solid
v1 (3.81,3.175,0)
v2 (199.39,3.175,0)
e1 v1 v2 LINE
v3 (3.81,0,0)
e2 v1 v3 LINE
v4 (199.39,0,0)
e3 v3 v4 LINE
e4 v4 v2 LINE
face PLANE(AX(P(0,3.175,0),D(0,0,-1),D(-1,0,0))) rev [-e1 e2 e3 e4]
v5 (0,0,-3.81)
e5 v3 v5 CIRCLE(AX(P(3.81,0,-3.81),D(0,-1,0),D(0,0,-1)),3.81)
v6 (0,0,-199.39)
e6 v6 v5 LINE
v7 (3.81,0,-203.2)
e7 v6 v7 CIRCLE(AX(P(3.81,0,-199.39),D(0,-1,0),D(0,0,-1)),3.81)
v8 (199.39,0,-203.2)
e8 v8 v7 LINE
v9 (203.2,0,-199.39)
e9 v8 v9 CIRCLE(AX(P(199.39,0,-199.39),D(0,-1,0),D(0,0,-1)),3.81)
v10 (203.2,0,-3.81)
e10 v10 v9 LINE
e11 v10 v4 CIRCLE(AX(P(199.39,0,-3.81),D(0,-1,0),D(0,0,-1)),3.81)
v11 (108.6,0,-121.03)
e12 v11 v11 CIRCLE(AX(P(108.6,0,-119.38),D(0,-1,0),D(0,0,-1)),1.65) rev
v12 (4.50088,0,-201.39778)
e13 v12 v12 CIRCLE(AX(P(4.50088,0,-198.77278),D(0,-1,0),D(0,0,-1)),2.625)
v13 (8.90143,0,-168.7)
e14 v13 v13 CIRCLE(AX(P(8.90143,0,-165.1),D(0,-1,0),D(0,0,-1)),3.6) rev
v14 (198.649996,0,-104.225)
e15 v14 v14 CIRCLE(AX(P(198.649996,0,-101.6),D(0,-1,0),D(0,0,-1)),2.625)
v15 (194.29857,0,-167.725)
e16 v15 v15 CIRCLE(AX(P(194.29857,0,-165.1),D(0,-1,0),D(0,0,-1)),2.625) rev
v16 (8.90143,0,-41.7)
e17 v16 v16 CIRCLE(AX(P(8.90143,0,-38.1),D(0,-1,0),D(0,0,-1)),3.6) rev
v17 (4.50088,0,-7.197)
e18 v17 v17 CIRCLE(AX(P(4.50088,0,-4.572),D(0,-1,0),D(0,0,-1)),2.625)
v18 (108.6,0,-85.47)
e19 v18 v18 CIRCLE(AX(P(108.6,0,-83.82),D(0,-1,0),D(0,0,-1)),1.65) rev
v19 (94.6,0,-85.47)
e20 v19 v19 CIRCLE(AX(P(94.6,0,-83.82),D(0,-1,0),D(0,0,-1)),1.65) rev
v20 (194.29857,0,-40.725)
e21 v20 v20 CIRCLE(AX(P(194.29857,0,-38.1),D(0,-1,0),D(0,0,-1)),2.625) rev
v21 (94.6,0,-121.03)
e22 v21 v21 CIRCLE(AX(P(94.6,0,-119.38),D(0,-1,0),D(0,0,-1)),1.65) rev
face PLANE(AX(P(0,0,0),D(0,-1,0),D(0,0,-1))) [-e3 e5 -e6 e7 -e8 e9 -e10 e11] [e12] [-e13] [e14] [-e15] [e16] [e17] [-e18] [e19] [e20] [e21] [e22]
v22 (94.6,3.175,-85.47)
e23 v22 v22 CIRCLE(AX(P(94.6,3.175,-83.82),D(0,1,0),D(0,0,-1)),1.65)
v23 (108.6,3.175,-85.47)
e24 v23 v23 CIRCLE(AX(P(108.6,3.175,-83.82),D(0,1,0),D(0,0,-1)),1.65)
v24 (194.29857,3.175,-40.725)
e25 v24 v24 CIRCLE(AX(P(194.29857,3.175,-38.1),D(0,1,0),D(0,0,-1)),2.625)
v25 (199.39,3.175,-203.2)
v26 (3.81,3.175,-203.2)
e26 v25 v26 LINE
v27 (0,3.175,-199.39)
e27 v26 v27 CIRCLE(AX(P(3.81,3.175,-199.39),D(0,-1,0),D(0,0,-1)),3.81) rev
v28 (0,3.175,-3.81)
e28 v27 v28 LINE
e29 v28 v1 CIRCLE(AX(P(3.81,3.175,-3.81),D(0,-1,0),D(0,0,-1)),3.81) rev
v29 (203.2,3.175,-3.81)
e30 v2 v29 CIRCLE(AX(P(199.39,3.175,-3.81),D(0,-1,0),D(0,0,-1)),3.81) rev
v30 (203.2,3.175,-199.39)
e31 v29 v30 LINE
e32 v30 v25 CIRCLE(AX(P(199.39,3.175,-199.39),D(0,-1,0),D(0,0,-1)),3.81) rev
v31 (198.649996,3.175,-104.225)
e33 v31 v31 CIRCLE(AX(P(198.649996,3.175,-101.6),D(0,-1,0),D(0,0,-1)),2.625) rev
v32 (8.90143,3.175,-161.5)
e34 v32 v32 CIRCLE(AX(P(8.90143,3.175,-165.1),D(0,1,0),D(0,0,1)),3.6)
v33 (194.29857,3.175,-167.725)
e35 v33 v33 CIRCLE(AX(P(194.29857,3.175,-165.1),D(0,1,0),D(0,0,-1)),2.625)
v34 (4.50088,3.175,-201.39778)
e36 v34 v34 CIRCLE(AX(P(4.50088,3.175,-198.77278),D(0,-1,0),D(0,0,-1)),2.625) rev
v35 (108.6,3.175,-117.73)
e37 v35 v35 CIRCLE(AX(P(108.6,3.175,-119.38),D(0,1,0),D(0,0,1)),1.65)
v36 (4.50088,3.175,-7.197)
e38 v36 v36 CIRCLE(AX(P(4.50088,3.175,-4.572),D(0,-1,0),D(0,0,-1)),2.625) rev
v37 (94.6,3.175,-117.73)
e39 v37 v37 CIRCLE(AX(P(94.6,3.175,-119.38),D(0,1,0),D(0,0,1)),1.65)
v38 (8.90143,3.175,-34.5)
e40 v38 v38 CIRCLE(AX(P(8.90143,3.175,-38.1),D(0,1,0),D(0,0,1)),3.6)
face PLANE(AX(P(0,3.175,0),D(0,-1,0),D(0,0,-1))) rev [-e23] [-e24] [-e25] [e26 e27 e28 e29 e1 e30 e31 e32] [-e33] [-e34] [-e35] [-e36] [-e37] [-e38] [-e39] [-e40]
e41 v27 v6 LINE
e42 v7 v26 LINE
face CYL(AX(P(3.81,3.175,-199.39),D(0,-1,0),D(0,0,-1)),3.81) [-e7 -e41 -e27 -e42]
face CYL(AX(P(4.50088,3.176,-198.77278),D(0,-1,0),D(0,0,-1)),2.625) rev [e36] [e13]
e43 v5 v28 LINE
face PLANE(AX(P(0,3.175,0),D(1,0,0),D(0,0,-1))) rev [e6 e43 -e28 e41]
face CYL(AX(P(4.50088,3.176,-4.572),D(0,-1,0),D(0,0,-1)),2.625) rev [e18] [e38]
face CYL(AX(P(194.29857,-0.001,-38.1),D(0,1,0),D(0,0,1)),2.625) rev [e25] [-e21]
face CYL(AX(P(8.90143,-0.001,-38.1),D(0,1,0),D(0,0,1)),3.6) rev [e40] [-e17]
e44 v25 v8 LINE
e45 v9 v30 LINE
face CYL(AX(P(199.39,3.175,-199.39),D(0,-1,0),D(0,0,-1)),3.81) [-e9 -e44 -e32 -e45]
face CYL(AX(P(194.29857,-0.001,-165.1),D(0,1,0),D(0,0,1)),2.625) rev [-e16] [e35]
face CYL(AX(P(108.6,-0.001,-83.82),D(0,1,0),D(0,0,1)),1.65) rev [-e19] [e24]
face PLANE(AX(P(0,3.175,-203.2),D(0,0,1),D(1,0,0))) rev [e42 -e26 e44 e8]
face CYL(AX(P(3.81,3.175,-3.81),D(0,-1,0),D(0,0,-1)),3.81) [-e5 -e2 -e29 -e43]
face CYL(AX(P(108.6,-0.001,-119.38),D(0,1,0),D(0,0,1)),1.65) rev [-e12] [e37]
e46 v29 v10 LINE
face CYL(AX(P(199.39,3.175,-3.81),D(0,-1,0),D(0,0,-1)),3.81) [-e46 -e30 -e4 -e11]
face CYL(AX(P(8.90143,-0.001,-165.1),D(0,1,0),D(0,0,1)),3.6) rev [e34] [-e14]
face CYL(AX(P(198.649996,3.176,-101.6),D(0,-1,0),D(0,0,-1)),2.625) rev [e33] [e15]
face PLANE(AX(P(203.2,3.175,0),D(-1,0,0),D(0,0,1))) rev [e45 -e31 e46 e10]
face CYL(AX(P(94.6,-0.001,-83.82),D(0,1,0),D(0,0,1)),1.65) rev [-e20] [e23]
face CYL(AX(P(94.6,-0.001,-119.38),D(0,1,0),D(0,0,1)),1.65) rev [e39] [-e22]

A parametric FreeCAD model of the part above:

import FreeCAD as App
import Part
import Sketcher

V = App.Vector
Q = App.Units.Quantity


def edges_at(feature, points):
    """Names of the edges that pass closest to the given points."""
    edges = feature.Shape.Edges
    near = lambda p: min(range(len(edges)), key=lambda i: edges[i].distToShape(Part.Vertex(*p))[0])
    return sorted({f"Edge{near(p) + 1}" for p in points})

doc = App.newDocument("Part")
params = doc.addObject("Spreadsheet::Sheet", "Params")
for row, (alias, value) in enumerate([
    ("sketch1_width", "8 in"),
    ("pad1_length", "0.125 in"),
    ("fillet_radius", "0.15 in"),
], start=1):
    params.set(f"A{row}", alias)
    params.set(f"B{row}", "=" + value)
    params.setAlias(f"B{row}", alias)

body = doc.addObject("PartDesign::Body", "Body")

sketch1 = body.newObject("Sketcher::SketchObject", "Sketch")
sketch1.AttachmentSupport = (doc.getObject("XZ_Plane"), [""])
sketch1.MapMode = "FlatFace"
sketch1.addGeometry(Part.LineSegment(V(0, -203, 0), V(0, 0, 0)), False)
sketch1.addGeometry(Part.LineSegment(V(0, 0, 0), V(203, 0, 0)), False)
sketch1.addGeometry(Part.LineSegment(V(203, 0, 0), V(203, -203, 0)), False)
sketch1.addGeometry(Part.LineSegment(V(203, -203, 0), V(0, -203, 0)), False)
sketch1.addConstraint(Sketcher.Constraint("Coincident", 0, 2, 1, 1))
sketch1.addConstraint(Sketcher.Constraint("Coincident", 1, 2, 2, 1))
sketch1.addConstraint(Sketcher.Constraint("Coincident", 2, 2, 3, 1))
sketch1.addConstraint(Sketcher.Constraint("Coincident", 3, 2, 0, 1))
sketch1.addConstraint(Sketcher.Constraint("Vertical", 0))
sketch1.addConstraint(Sketcher.Constraint("Horizontal", 1))
sketch1.addConstraint(Sketcher.Constraint("Vertical", 2))
sketch1.addConstraint(Sketcher.Constraint("Horizontal", 3))
sketch1.addConstraint(Sketcher.Constraint("Coincident", 0, 2, -1, 1))
sketch1.addConstraint(Sketcher.Constraint("Equal", 3, 0))
sketch1.addConstraint(Sketcher.Constraint("DistanceX", 1, 1, 1, 2, Q("8 in")))
sketch1.setExpression("Constraints[10]", "Params.sketch1_width")
pad1 = body.newObject("PartDesign::Pad", "Pad")
pad1.Profile = sketch1
pad1.setExpression("Length", "Params.pad1_length")
pad1.Reversed = True

sketch2 = body.newObject("Sketcher::SketchObject", "Sketch001")
sketch2.AttachmentSupport = (doc.getObject("XZ_Plane"), [""])
sketch2.MapMode = "FlatFace"
sketch2.AttachmentOffset = App.Placement(V(0, 0, -0.125 * 25.4), App.Rotation())
sketch2.addGeometry(Part.Circle(V(8.9, -38.1, 0), V(0, 0, 1), 3.6), False)
sketch2.addConstraint(Sketcher.Constraint("DistanceY", 0, 3, -1, 1, Q("1.5 in")))
sketch2.addConstraint(Sketcher.Constraint("Diameter", 0, Q("7.2 mm")))
sketch2.addConstraint(Sketcher.Constraint("DistanceX", -1, 1, 0, 3, Q("8.90143 mm")))
pocket1 = body.newObject("PartDesign::Pocket", "Pocket")
pocket1.Profile = sketch2
pocket1.Type = "UpToFirst"
pocket1.Reversed = True

sketch3 = body.newObject("Sketcher::SketchObject", "Sketch002")
sketch3.AttachmentSupport = (doc.getObject("XZ_Plane"), [""])
sketch3.MapMode = "FlatFace"
sketch3.AttachmentOffset = App.Placement(V(0, 0, -0.125 * 25.4), App.Rotation())
sketch3.addGeometry(Part.Circle(V(8.9, -165.1, 0), V(0, 0, 1), 3.6), False)
sketch3.addConstraint(Sketcher.Constraint("DistanceY", 0, 3, -1, 1, Q("6.5 in")))
sketch3.addConstraint(Sketcher.Constraint("Diameter", 0, Q("7.2 mm")))
sketch3.addConstraint(Sketcher.Constraint("DistanceX", -1, 1, 0, 3, Q("8.90143 mm")))
pocket2 = body.newObject("PartDesign::Pocket", "Pocket001")
pocket2.Profile = sketch3
pocket2.Type = "UpToFirst"
pocket2.Reversed = True

sketch4 = body.newObject("Sketcher::SketchObject", "Sketch003")
sketch4.AttachmentSupport = (doc.getObject("XZ_Plane"), [""])
sketch4.MapMode = "FlatFace"
sketch4.AttachmentOffset = App.Placement(V(0, 0, -0.125 * 25.4), App.Rotation())
sketch4.addGeometry(Part.Circle(V(194.3, -38.1, 0), V(0, 0, 1), 2.6), False)
sketch4.addConstraint(Sketcher.Constraint("DistanceY", 0, 3, -1, 1, Q("1.5 in")))
sketch4.addConstraint(Sketcher.Constraint("Diameter", 0, Q("5.25 mm")))
sketch4.addConstraint(Sketcher.Constraint("DistanceX", -1, 1, 0, 3, Q("194.29857 mm")))
pocket3 = body.newObject("PartDesign::Pocket", "Pocket002")
pocket3.Profile = sketch4
pocket3.Type = "UpToFirst"
pocket3.Reversed = True

sketch5 = body.newObject("Sketcher::SketchObject", "Sketch004")
sketch5.AttachmentSupport = (doc.getObject("XZ_Plane"), [""])
sketch5.MapMode = "FlatFace"
sketch5.AttachmentOffset = App.Placement(V(0, 0, -0.125 * 25.4), App.Rotation())
sketch5.addGeometry(Part.Circle(V(194.3, -165.1, 0), V(0, 0, 1), 2.6), False)
sketch5.addConstraint(Sketcher.Constraint("DistanceY", 0, 3, -1, 1, Q("6.5 in")))
sketch5.addConstraint(Sketcher.Constraint("Diameter", 0, Q("5.25 mm")))
sketch5.addConstraint(Sketcher.Constraint("DistanceX", -1, 1, 0, 3, Q("194.29857 mm")))
pocket4 = body.newObject("PartDesign::Pocket", "Pocket003")
pocket4.Profile = sketch5
pocket4.Type = "UpToFirst"
pocket4.Reversed = True

sketch6 = body.newObject("Sketcher::SketchObject", "Sketch005")
sketch6.AttachmentSupport = (doc.getObject("XZ_Plane"), [""])
sketch6.MapMode = "FlatFace"
sketch6.addGeometry(Part.Circle(V(4.5, -4.6, 0), V(0, 0, 1), 2.6), False)
sketch6.addConstraint(Sketcher.Constraint("Diameter", 0, Q("5.25 mm")))
sketch6.addConstraint(Sketcher.Constraint("DistanceY", 0, 3, -1, 1, Q("0.18 in")))
sketch6.addConstraint(Sketcher.Constraint("DistanceX", -1, 1, 0, 3, Q("0.1772 in")))
pocket5 = body.newObject("PartDesign::Pocket", "Pocket004")
pocket5.Profile = sketch6
pocket5.Type = "UpToFirst"

sketch7 = body.newObject("Sketcher::SketchObject", "Sketch006")
sketch7.AttachmentSupport = (doc.getObject("XZ_Plane"), [""])
sketch7.MapMode = "FlatFace"
sketch7.addGeometry(Part.Circle(V(4.5, -198.8, 0), V(0, 0, 1), 2.6), False)
sketch7.addConstraint(Sketcher.Constraint("Diameter", 0, Q("5.25 mm")))
sketch7.addConstraint(Sketcher.Constraint("DistanceX", -1, 1, 0, 3, Q("0.1772 in")))
sketch7.addConstraint(Sketcher.Constraint("DistanceY", 0, 3, -1, 1, Q("7.8257 in")))
pocket6 = body.newObject("PartDesign::Pocket", "Pocket005")
pocket6.Profile = sketch7
pocket6.Type = "UpToFirst"

sketch8 = body.newObject("Sketcher::SketchObject", "Sketch007")
sketch8.AttachmentSupport = (doc.getObject("XZ_Plane"), [""])
sketch8.MapMode = "FlatFace"
sketch8.addGeometry(Part.Circle(V(198.6, -101.6, 0), V(0, 0, 1), 2.6), False)
sketch8.addConstraint(Sketcher.Constraint("DistanceY", 0, 3, -1, 1, Q("4 in")))
sketch8.addConstraint(Sketcher.Constraint("Diameter", 0, Q("5.25 mm")))
sketch8.addConstraint(Sketcher.Constraint("DistanceX", -1, 1, 0, 3, Q("198.649996 mm")))
pocket7 = body.newObject("PartDesign::Pocket", "Pocket006")
pocket7.Profile = sketch8
pocket7.Type = "UpToFirst"
doc.recompute()

fillet = body.newObject("PartDesign::Fillet", "Fillet")
fillet.Base = (pocket7, edges_at(pocket7, [
    (0, 1.587, -203.2),
    (203.2, 1.587, -203.2),
    (203.2, 1.587, 0),
    (0, 1.587, 0),
]))
fillet.setExpression("Radius", "Params.fillet_radius")

sketch9 = body.newObject("Sketcher::SketchObject", "Sketch008")
sketch9.AttachmentSupport = (doc.getObject("XZ_Plane"), [""])
sketch9.MapMode = "FlatFace"
sketch9.AttachmentOffset = App.Placement(V(0, 0, -0.125 * 25.4), App.Rotation())
sketch9.addGeometry(Part.Circle(V(94.6, -119.4, 0), V(0, 0, 1), 1.6), False)
sketch9.addConstraint(Sketcher.Constraint("DistanceY", 0, 3, -1, 1, Q("4.7 in")))
sketch9.addConstraint(Sketcher.Constraint("Diameter", 0, Q("3.3 mm")))
sketch9.addConstraint(Sketcher.Constraint("DistanceX", -1, 1, 0, 3, Q("94.6 mm")))
pocket8 = body.newObject("PartDesign::Pocket", "Pocket007")
pocket8.Profile = sketch9
pocket8.Type = "UpToFirst"
pocket8.Reversed = True

sketch10 = body.newObject("Sketcher::SketchObject", "Sketch009")
sketch10.AttachmentSupport = (doc.getObject("XZ_Plane"), [""])
sketch10.MapMode = "FlatFace"
sketch10.AttachmentOffset = App.Placement(V(0, 0, -0.125 * 25.4), App.Rotation())
sketch10.addGeometry(Part.Circle(V(108.6, -119.4, 0), V(0, 0, 1), 1.6), False)
sketch10.addConstraint(Sketcher.Constraint("DistanceY", 0, 3, -1, 1, Q("4.7 in")))
sketch10.addConstraint(Sketcher.Constraint("Diameter", 0, Q("3.3 mm")))
sketch10.addConstraint(Sketcher.Constraint("DistanceX", -1, 1, 0, 3, Q("108.6 mm")))
pocket9 = body.newObject("PartDesign::Pocket", "Pocket008")
pocket9.Profile = sketch10
pocket9.Type = "UpToFirst"
pocket9.Reversed = True

sketch11 = body.newObject("Sketcher::SketchObject", "Sketch010")
sketch11.AttachmentSupport = (doc.getObject("XZ_Plane"), [""])
sketch11.MapMode = "FlatFace"
sketch11.AttachmentOffset = App.Placement(V(0, 0, -0.125 * 25.4), App.Rotation())
sketch11.addGeometry(Part.Circle(V(108.6, -83.8, 0), V(0, 0, 1), 1.6), False)
sketch11.addConstraint(Sketcher.Constraint("DistanceY", 0, 3, -1, 1, Q("3.3 in")))
sketch11.addConstraint(Sketcher.Constraint("Diameter", 0, Q("3.3 mm")))
sketch11.addConstraint(Sketcher.Constraint("DistanceX", -1, 1, 0, 3, Q("108.6 mm")))
pocket10 = body.newObject("PartDesign::Pocket", "Pocket009")
pocket10.Profile = sketch11
pocket10.Type = "UpToFirst"
pocket10.Reversed = True

sketch12 = body.newObject("Sketcher::SketchObject", "Sketch011")
sketch12.AttachmentSupport = (doc.getObject("XZ_Plane"), [""])
sketch12.MapMode = "FlatFace"
sketch12.AttachmentOffset = App.Placement(V(0, 0, -0.125 * 25.4), App.Rotation())
sketch12.addGeometry(Part.Circle(V(94.6, -83.8, 0), V(0, 0, 1), 1.6), False)
sketch12.addConstraint(Sketcher.Constraint("DistanceY", 0, 3, -1, 1, Q("3.3 in")))
sketch12.addConstraint(Sketcher.Constraint("Diameter", 0, Q("3.3 mm")))
sketch12.addConstraint(Sketcher.Constraint("DistanceX", -1, 1, 0, 3, Q("94.6 mm")))
pocket11 = body.newObject("PartDesign::Pocket", "Pocket010")
pocket11.Profile = sketch12
pocket11.Type = "UpToFirst"
pocket11.Reversed = True

doc.recompute()
